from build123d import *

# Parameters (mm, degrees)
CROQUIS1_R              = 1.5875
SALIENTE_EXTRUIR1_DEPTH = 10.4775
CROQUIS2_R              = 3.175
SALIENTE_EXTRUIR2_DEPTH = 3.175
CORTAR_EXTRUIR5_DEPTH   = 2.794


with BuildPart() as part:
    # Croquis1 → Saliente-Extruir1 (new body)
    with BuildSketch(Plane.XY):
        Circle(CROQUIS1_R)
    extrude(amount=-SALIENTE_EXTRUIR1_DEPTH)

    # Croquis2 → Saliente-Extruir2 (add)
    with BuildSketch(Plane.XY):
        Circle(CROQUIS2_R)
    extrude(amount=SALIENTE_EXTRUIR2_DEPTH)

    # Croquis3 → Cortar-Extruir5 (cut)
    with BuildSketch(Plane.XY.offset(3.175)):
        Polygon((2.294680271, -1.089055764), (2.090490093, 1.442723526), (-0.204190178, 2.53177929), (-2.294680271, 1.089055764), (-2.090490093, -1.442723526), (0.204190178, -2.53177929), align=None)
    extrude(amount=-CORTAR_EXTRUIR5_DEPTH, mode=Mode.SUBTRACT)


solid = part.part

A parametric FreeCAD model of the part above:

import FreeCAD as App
import Part
import Sketcher

V = App.Vector
Q = App.Units.Quantity

doc = App.newDocument("Part")
body = doc.addObject("PartDesign::Body", "Body")

# Sketch on XY plane
sketch1 = body.newObject("Sketcher::SketchObject", "Sketch")
sketch1.AttachmentSupport = (doc.getObject("XY_Plane"), [""])
sketch1.MapMode = "FlatFace"
sketch1.addGeometry(Part.Circle(V(0, 0, 0), V(0, 0, 1), 1.5875), False)
sketch1.addConstraint(Sketcher.Constraint("Coincident", 0, 3, -1, 1))
sketch1.addConstraint(Sketcher.Constraint("Diameter", 0, Q("0.125 in")))
pad1 = body.newObject("PartDesign::Pad", "Pad")
pad1.Profile = sketch1
pad1.Length = Q("0.4125 in")
pad1.Reversed = True

# Sketch on XY plane
sketch2 = body.newObject("Sketcher::SketchObject", "Sketch001")
sketch2.AttachmentSupport = (doc.getObject("XY_Plane"), [""])
sketch2.MapMode = "FlatFace"
sketch2.addGeometry(Part.Circle(V(0, 0, 0), V(0, 0, 1), 3.175), False)
sketch2.addConstraint(Sketcher.Constraint("Coincident", 0, 3, -1, 1))
sketch2.addConstraint(Sketcher.Constraint("Diameter", 0, Q("0.25 in")))
pad2 = body.newObject("PartDesign::Pad", "Pad001")
pad2.Profile = sketch2
pad2.Length = Q("0.125 in")

# Sketch on XY plane
sketch3 = body.newObject("Sketcher::SketchObject", "Sketch002")
sketch3.AttachmentSupport = (doc.getObject("XY_Plane"), [""])
sketch3.MapMode = "FlatFace"
sketch3.AttachmentOffset = App.Placement(V(0, 0, 0.125 * 25.4), App.Rotation())
sketch3.addGeometry(Part.LineSegment(V(2.29468, -1.089056, 0), V(2.09049, 1.442724, 0)), False)
sketch3.addGeometry(Part.LineSegment(V(2.09049, 1.442724, 0), V(-0.20419, 2.531779, 0)), False)
sketch3.addGeometry(Part.LineSegment(V(-0.20419, 2.531779, 0), V(-2.29468, 1.089056, 0)), False)
sketch3.addGeometry(Part.LineSegment(V(-2.29468, 1.089056, 0), V(-2.09049, -1.442724, 0)), False)
sketch3.addGeometry(Part.LineSegment(V(-2.09049, -1.442724, 0), V(0.20419, -2.531779, 0)), False)
sketch3.addGeometry(Part.LineSegment(V(0.20419, -2.531779, 0), V(2.29468, -1.089056, 0)), False)
sketch3.addConstraint(Sketcher.Constraint("Coincident", 0, 2, 1, 1))
sketch3.addConstraint(Sketcher.Constraint("Coincident", 1, 2, 2, 1))
sketch3.addConstraint(Sketcher.Constraint("Coincident", 2, 2, 3, 1))
sketch3.addConstraint(Sketcher.Constraint("Coincident", 3, 2, 4, 1))
sketch3.addConstraint(Sketcher.Constraint("Coincident", 4, 2, 5, 1))
sketch3.addConstraint(Sketcher.Constraint("Coincident", 5, 2, 0, 1))
sketch3.addConstraint(Sketcher.Constraint("Symmetric", 0, 2, 3, 2, -1, 1))
sketch3.addConstraint(Sketcher.Constraint("Symmetric", 1, 2, 4, 2, -1, 1))
sketch3.addConstraint(Sketcher.Constraint("Symmetric", 2, 2, 5, 2, -1, 1))
sketch3.addConstraint(Sketcher.Constraint("Equal", 0, 1))
sketch3.addConstraint(Sketcher.Constraint("Equal", 1, 2))
sketch3.addConstraint(Sketcher.Constraint("Distance", 0, Q("0.1 in")))
sketch3.addConstraint(Sketcher.Constraint("DistanceY", -1, 1, 0, 2, Q("0.0568001 in")))
sketch3.addConstraint(Sketcher.Constraint("DistanceY", 2, 2, 1, 2, Q("0.0568001 in")))
sketch3.addConstraint(Sketcher.Constraint("DistanceX", 3, 2, 1, 2, Q("1.8863 mm")))
pocket1 = body.newObject("PartDesign::Pocket", "Pocket")
pocket1.Profile = sketch3
pocket1.Length = Q("0.11 in")

doc.recompute()
